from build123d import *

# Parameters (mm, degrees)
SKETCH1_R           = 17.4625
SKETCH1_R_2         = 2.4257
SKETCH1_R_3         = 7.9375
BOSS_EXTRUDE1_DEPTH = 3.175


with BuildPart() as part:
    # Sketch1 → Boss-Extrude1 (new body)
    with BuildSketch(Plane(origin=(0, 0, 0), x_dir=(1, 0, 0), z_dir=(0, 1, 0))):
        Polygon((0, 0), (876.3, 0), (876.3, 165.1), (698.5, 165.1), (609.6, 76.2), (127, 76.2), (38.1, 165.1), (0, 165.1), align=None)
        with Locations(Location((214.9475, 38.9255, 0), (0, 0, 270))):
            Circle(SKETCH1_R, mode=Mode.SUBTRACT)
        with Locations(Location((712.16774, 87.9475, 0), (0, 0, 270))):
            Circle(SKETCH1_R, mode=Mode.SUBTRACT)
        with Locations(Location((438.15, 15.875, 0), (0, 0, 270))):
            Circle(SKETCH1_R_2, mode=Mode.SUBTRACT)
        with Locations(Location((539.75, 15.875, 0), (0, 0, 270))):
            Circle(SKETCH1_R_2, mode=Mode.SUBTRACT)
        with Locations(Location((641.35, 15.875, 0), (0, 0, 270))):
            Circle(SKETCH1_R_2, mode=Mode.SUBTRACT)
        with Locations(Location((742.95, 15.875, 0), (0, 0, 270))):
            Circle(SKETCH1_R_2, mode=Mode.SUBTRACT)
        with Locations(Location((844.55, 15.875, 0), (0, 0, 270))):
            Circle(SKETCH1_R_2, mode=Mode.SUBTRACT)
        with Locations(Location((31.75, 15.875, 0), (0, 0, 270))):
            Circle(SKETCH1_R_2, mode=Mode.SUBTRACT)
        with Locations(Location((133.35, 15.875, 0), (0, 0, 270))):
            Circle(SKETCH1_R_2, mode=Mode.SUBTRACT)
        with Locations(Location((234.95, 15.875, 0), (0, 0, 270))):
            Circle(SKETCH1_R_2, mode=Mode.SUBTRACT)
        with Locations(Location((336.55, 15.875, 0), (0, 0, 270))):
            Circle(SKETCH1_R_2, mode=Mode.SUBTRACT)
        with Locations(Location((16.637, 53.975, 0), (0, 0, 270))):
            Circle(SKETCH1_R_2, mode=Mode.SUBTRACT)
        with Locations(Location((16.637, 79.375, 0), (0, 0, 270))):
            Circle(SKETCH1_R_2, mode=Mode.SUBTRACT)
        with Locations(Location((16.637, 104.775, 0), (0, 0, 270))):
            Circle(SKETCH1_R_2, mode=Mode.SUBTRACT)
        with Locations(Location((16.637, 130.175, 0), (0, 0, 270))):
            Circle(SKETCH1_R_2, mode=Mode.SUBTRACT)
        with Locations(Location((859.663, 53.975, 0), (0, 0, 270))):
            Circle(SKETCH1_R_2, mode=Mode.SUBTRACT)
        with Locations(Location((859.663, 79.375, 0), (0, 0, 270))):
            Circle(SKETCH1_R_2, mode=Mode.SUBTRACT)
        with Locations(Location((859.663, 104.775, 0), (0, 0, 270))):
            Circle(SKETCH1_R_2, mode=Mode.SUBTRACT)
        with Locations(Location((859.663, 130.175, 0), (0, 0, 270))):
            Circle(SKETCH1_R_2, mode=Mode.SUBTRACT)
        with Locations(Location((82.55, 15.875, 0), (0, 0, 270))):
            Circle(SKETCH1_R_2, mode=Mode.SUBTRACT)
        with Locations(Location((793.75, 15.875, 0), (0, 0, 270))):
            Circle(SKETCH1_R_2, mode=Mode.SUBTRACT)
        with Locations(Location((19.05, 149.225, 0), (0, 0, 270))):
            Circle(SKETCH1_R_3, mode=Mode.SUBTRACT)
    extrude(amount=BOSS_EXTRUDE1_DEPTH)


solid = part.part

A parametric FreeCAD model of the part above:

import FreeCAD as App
import Part
import Sketcher
from FreeCAD import Vector
Q = App.Units.Quantity


def add_polygon(sketch, points):
    """Adds a closed chain of lines whose ends are joined by coincident constraints."""
    first, n = sketch.GeometryCount, len(points)
    for a, b in zip(points, points[1:] + points[:1]):
        sketch.addGeometry(Part.LineSegment(App.Vector(*a, 0), App.Vector(*b, 0)), False)
    for i in range(n):
        sketch.addConstraint(Sketcher.Constraint("Coincident", first + i, 2, first + (i + 1) % n, 1))

doc = App.newDocument("Part")
body = doc.addObject("PartDesign::Body", "Body")

# Sketch on XZ plane
sketch1 = body.newObject("Sketcher::SketchObject", "Sketch")
sketch1.AttachmentSupport = (doc.getObject("XZ_Plane"), [""])
sketch1.MapMode = "FlatFace"
add_polygon(sketch1, [(0, 0), (876.3, 0), (876.3, -165.1), (698.5, -165.1), (609.6, -76.2), (127, -76.2), (38.1, -165.1), (0, -165.1)])  # lines 0-7
sketch1.addGeometry(Part.Circle(Vector(31.8, -15.9, 0), Vector(0, 0, 1), 2.4), False)  # 8
sketch1.addGeometry(Part.Circle(Vector(82.5, -15.9, 0), Vector(0, 0, 1), 2.4), False)  # 9
sketch1.addGeometry(Part.Circle(Vector(133.3, -15.9, 0), Vector(0, 0, 1), 2.4), False)  # 10
sketch1.addGeometry(Part.Circle(Vector(214.9, -38.9, 0), Vector(0, 0, 1), 17.5), False)  # 11
sketch1.addGeometry(Part.Circle(Vector(234.9, -15.9, 0), Vector(0, 0, 1), 2.4), False)  # 12
sketch1.addGeometry(Part.Circle(Vector(336.6, -15.9, 0), Vector(0, 0, 1), 2.4), False)  # 13
sketch1.addGeometry(Part.Circle(Vector(16.6, -54, 0), Vector(0, 0, 1), 2.4), False)  # 14
sketch1.addGeometry(Part.Circle(Vector(16.6, -79.4, 0), Vector(0, 0, 1), 2.4), False)  # 15
sketch1.addGeometry(Part.Circle(Vector(438.1, -15.9, 0), Vector(0, 0, 1), 2.4), False)  # 16
sketch1.addGeometry(Part.Circle(Vector(539.8, -15.9, 0), Vector(0, 0, 1), 2.4), False)  # 17
sketch1.addGeometry(Part.Circle(Vector(641.4, -15.9, 0), Vector(0, 0, 1), 2.4), False)  # 18
sketch1.addGeometry(Part.Circle(Vector(743, -15.9, 0), Vector(0, 0, 1), 2.4), False)  # 19
sketch1.addGeometry(Part.Circle(Vector(793.8, -15.9, 0), Vector(0, 0, 1), 2.4), False)  # 20
sketch1.addGeometry(Part.Circle(Vector(844.5, -15.9, 0), Vector(0, 0, 1), 2.4), False)  # 21
sketch1.addGeometry(Part.Circle(Vector(859.7, -54, 0), Vector(0, 0, 1), 2.4), False)  # 22
sketch1.addGeometry(Part.Circle(Vector(859.7, -79.4, 0), Vector(0, 0, 1), 2.4), False)  # 23
sketch1.addGeometry(Part.Circle(Vector(16.6, -104.8, 0), Vector(0, 0, 1), 2.4), False)  # 24
sketch1.addGeometry(Part.Circle(Vector(16.6, -130.2, 0), Vector(0, 0, 1), 2.4), False)  # 25
sketch1.addGeometry(Part.Circle(Vector(19.1, -149.2, 0), Vector(0, 0, 1), 7.9), False)  # 26
sketch1.addGeometry(Part.Circle(Vector(712.2, -87.9, 0), Vector(0, 0, 1), 17.5), False)  # 27
sketch1.addGeometry(Part.Circle(Vector(859.7, -104.8, 0), Vector(0, 0, 1), 2.4), False)  # 28
sketch1.addGeometry(Part.Circle(Vector(859.7, -130.2, 0), Vector(0, 0, 1), 2.4), False)  # 29
sketch1.addConstraint(Sketcher.Constraint("Horizontal", 0))
sketch1.addConstraint(Sketcher.Constraint("Vertical", 1))
sketch1.addConstraint(Sketcher.Constraint("Horizontal", 2))
sketch1.addConstraint(Sketcher.Constraint("Horizontal", 4))
sketch1.addConstraint(Sketcher.Constraint("Horizontal", 6))
sketch1.addConstraint(Sketcher.Constraint("Vertical", 7))
sketch1.addConstraint(Sketcher.Constraint("Coincident", 7, 2, -1, 1))
sketch1.addConstraint(Sketcher.Constraint("Equal", 8, 9))
sketch1.addConstraint(Sketcher.Constraint("Equal", 9, 10))
sketch1.addConstraint(Sketcher.Constraint("Equal", 10, 12))
sketch1.addConstraint(Sketcher.Constraint("Equal", 12, 13))
sketch1.addConstraint(Sketcher.Constraint("Equal", 13, 14))
sketch1.addConstraint(Sketcher.Constraint("Equal", 14, 15))
sketch1.addConstraint(Sketcher.Constraint("Equal", 15, 16))
sketch1.addConstraint(Sketcher.Constraint("Equal", 16, 17))
sketch1.addConstraint(Sketcher.Constraint("Equal", 17, 18))
sketch1.addConstraint(Sketcher.Constraint("Equal", 18, 19))
sketch1.addConstraint(Sketcher.Constraint("Equal", 19, 20))
sketch1.addConstraint(Sketcher.Constraint("Equal", 20, 21))
sketch1.addConstraint(Sketcher.Constraint("Equal", 21, 22))
sketch1.addConstraint(Sketcher.Constraint("Equal", 22, 23))
sketch1.addConstraint(Sketcher.Constraint("Equal", 23, 24))
sketch1.addConstraint(Sketcher.Constraint("Equal", 24, 25))
sketch1.addConstraint(Sketcher.Constraint("Equal", 11, 27))
sketch1.addConstraint(Sketcher.Constraint("Equal", 25, 28))
sketch1.addConstraint(Sketcher.Constraint("Equal", 28, 29))
sketch1.addConstraint(Sketcher.Constraint("Perpendicular", 3, 5))
sketch1.addConstraint(Sketcher.Constraint("Horizontal", 8, 3, 9, 3))
sketch1.addConstraint(Sketcher.Constraint("Horizontal", 9, 3, 10, 3))
sketch1.addConstraint(Sketcher.Constraint("Horizontal", 10, 3, 12, 3))
sketch1.addConstraint(Sketcher.Constraint("Horizontal", 12, 3, 13, 3))
sketch1.addConstraint(Sketcher.Constraint("Horizontal", 13, 3, 16, 3))
sketch1.addConstraint(Sketcher.Constraint("Horizontal", 16, 3, 17, 3))
sketch1.addConstraint(Sketcher.Constraint("Horizontal", 17, 3, 18, 3))
sketch1.addConstraint(Sketcher.Constraint("Horizontal", 18, 3, 19, 3))
sketch1.addConstraint(Sketcher.Constraint("Horizontal", 19, 3, 20, 3))
sketch1.addConstraint(Sketcher.Constraint("Horizontal", 20, 3, 21, 3))
sketch1.addConstraint(Sketcher.Constraint("Horizontal", 14, 3, 22, 3))
sketch1.addConstraint(Sketcher.Constraint("Horizontal", 15, 3, 23, 3))
sketch1.addConstraint(Sketcher.Constraint("Horizontal", 24, 3, 28, 3))
sketch1.addConstraint(Sketcher.Constraint("Horizontal", 25, 3, 29, 3))
sketch1.addConstraint(Sketcher.Constraint("Horizontal", 2, 2, 5, 2))
sketch1.addConstraint(Sketcher.Constraint("Vertical", 14, 3, 15, 3))
sketch1.addConstraint(Sketcher.Constraint("Vertical", 22, 3, 23, 3))
sketch1.addConstraint(Sketcher.Constraint("Vertical", 15, 3, 24, 3))
sketch1.addConstraint(Sketcher.Constraint("Vertical", 24, 3, 25, 3))
sketch1.addConstraint(Sketcher.Constraint("Vertical", 23, 3, 28, 3))
sketch1.addConstraint(Sketcher.Constraint("Vertical", 28, 3, 29, 3))
sketch1.addConstraint(Sketcher.Constraint("Equal", 3, 5))
sketch1.addConstraint(Sketcher.Constraint("DistanceX", 2, 2, 2, 1, Q("7 in")))
sketch1.addConstraint(Sketcher.Constraint("DistanceX", 4, 2, 4, 1, Q("19 in")))
sketch1.addConstraint(Sketcher.Constraint("Diameter", 8, Q("0.191 in")))
sketch1.addConstraint(Sketcher.Constraint("Diameter", 11, Q("1.375 in")))
sketch1.addConstraint(Sketcher.Constraint("Diameter", 26, Q("0.625 in")))
sketch1.addConstraint(Sketcher.Constraint("DistanceX", 0, 1, 0, 2, Q("34.5 in")))
sketch1.addConstraint(Sketcher.Constraint("DistanceX", 6, 2, 6, 1, Q("1.5 in")))
sketch1.addConstraint(Sketcher.Constraint("DistanceY", 1, 2, 1, 1, Q("6.5 in")))
sketch1.addConstraint(Sketcher.Constraint("DistanceX", 8, 3, 9, 3, Q("2 in")))
sketch1.addConstraint(Sketcher.Constraint("DistanceX", 9, 3, 10, 3, Q("2 in")))
sketch1.addConstraint(Sketcher.Constraint("DistanceX", 10, 3, 12, 3, Q("4 in")))
sketch1.addConstraint(Sketcher.Constraint("DistanceX", 12, 3, 13, 3, Q("4 in")))
sketch1.addConstraint(Sketcher.Constraint("DistanceY", 15, 3, 14, 3, Q("1 in")))
sketch1.addConstraint(Sketcher.Constraint("DistanceX", 13, 3, 16, 3, Q("4 in")))
sketch1.addConstraint(Sketcher.Constraint("DistanceX", 16, 3, 17, 3, Q("4 in")))
sketch1.addConstraint(Sketcher.Constraint("DistanceX", 17, 3, 18, 3, Q("4 in")))
sketch1.addConstraint(Sketcher.Constraint("DistanceX", 18, 3, 19, 3, Q("4 in")))
sketch1.addConstraint(Sketcher.Constraint("DistanceX", 19, 3, 20, 3, Q("2 in")))
sketch1.addConstraint(Sketcher.Constraint("DistanceX", 20, 3, 21, 3, Q("2 in")))
sketch1.addConstraint(Sketcher.Constraint("DistanceY", 24, 3, 15, 3, Q("1 in")))
sketch1.addConstraint(Sketcher.Constraint("DistanceY", 25, 3, 24, 3, Q("1 in")))
sketch1.addConstraint(Sketcher.Constraint("DistanceY", 14, 3, 8, 3, Q("1.5 in")))
sketch1.addConstraint(Sketcher.Constraint("DistanceX", 26, 3, 8, 3, Q("0.5 in")))
sketch1.addConstraint(Sketcher.Constraint("DistanceX", -1, 1, 8, 3, Q("1.25 in")))
sketch1.addConstraint(Sketcher.Constraint("DistanceY", 26, 3, 25, 3, Q("0.75 in")))
sketch1.addConstraint(Sketcher.Constraint("DistanceY", 8, 3, -1, 1, Q("0.625 in")))
sketch1.addConstraint(Sketcher.Constraint("DistanceX", -1, 1, 14, 3, Q("0.655 in")))
sketch1.addConstraint(Sketcher.Constraint("DistanceX", -1, 1, 22, 3, Q("33.845 in")))
sketch1.addConstraint(Sketcher.Constraint("DistanceX", -1, 1, 11, 3, Q("8.4625 in")))
sketch1.addConstraint(Sketcher.Constraint("DistanceY", 11, 3, -1, 1, Q("1.5325 in")))
sketch1.addConstraint(Sketcher.Constraint("DistanceX", -1, 1, 27, 3, Q("28.0381 in")))
sketch1.addConstraint(Sketcher.Constraint("DistanceY", 27, 3, -1, 1, Q("3.4625 in")))
pad1 = body.newObject("PartDesign::Pad", "Pad")
pad1.Profile = sketch1
pad1.Length = Q("0.125 in")
pad1.Reversed = True

doc.recompute()
